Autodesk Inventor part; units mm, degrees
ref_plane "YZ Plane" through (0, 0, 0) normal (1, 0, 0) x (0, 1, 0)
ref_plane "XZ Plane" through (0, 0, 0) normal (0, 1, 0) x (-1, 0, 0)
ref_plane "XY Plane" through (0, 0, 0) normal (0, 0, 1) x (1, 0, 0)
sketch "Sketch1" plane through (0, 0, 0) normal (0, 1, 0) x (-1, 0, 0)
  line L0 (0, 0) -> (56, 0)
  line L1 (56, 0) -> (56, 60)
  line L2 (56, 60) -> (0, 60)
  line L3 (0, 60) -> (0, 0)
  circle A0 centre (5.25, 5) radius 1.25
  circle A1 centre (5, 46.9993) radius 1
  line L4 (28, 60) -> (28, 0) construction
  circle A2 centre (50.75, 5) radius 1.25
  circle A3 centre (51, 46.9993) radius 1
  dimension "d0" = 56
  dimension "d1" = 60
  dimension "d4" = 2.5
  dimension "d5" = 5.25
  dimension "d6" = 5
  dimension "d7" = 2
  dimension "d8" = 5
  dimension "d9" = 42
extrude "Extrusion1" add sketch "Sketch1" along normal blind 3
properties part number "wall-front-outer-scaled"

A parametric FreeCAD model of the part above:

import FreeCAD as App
import Part
import Sketcher
Q = App.Units.Quantity


def add_polygon(sketch, points):
    """Adds a closed chain of lines whose ends are joined by coincident constraints."""
    first, n = sketch.GeometryCount, len(points)
    for a, b in zip(points, points[1:] + points[:1]):
        sketch.addGeometry(Part.LineSegment(App.Vector(*a, 0), App.Vector(*b, 0)), False)
    for i in range(n):
        sketch.addConstraint(Sketcher.Constraint("Coincident", first + i, 2, first + (i + 1) % n, 1))

doc = App.newDocument("Part")
body = doc.addObject("PartDesign::Body", "Body")

sketch1 = body.newObject("Sketcher::SketchObject", "Sketch")
sketch1.AttachmentSupport = (doc.getObject("XZ_Plane"), [""])
sketch1.MapMode = "FlatFace"
add_polygon(sketch1, [(0, 60), (0, 0), (-56, 0), (-56, 60)])
sketch1.addGeometry(Part.Circle(App.Vector(-5.2, 5, 0), App.Vector(0, 0, 1), 1.2), False)
sketch1.addGeometry(Part.Circle(App.Vector(-50.8, 5, 0), App.Vector(0, 0, 1), 1.2), False)
sketch1.addGeometry(Part.Circle(App.Vector(-5, 47, 0), App.Vector(0, 0, 1), 1), False)
sketch1.addGeometry(Part.Circle(App.Vector(-51, 47, 0), App.Vector(0, 0, 1), 1), False)
sketch1.addConstraint([
    Sketcher.Constraint("Vertical", 0),
    Sketcher.Constraint("Horizontal", 1),
    Sketcher.Constraint("Vertical", 2),
    Sketcher.Constraint("Horizontal", 3),
    Sketcher.Constraint("Coincident", 0, 2, -1, 1),
    Sketcher.Constraint("Equal", 4, 5),
    Sketcher.Constraint("Equal", 6, 7),
    Sketcher.Constraint("Horizontal", 4, 3, 5, 3),
    Sketcher.Constraint("Horizontal", 6, 3, 7, 3),
    Sketcher.Constraint("Diameter", 6, Q("2 mm")),
    Sketcher.Constraint("Diameter", 4, Q("2.5 mm")),
    Sketcher.Constraint("DistanceX", 1, 2, 1, 1, Q("56 mm")),
    Sketcher.Constraint("DistanceY", 0, 2, 0, 1, Q("60 mm")),
    Sketcher.Constraint("DistanceY", -1, 1, 4, 3, Q("5 mm")),
    Sketcher.Constraint("DistanceX", 6, 3, -1, 1, Q("5 mm")),
    Sketcher.Constraint("DistanceX", 1, 2, 7, 3, Q("5 mm")),
    Sketcher.Constraint("DistanceX", 4, 3, -1, 1, Q("5.25 mm")),
    Sketcher.Constraint("DistanceX", 1, 2, 5, 3, Q("5.25 mm")),
    Sketcher.Constraint("DistanceY", -1, 1, 6, 3, Q("46.9993 mm")),
])
pad1 = body.newObject("PartDesign::Pad", "Pad")
pad1.Profile = sketch1
pad1.Length = 3
pad1.Reversed = True

doc.recompute()
